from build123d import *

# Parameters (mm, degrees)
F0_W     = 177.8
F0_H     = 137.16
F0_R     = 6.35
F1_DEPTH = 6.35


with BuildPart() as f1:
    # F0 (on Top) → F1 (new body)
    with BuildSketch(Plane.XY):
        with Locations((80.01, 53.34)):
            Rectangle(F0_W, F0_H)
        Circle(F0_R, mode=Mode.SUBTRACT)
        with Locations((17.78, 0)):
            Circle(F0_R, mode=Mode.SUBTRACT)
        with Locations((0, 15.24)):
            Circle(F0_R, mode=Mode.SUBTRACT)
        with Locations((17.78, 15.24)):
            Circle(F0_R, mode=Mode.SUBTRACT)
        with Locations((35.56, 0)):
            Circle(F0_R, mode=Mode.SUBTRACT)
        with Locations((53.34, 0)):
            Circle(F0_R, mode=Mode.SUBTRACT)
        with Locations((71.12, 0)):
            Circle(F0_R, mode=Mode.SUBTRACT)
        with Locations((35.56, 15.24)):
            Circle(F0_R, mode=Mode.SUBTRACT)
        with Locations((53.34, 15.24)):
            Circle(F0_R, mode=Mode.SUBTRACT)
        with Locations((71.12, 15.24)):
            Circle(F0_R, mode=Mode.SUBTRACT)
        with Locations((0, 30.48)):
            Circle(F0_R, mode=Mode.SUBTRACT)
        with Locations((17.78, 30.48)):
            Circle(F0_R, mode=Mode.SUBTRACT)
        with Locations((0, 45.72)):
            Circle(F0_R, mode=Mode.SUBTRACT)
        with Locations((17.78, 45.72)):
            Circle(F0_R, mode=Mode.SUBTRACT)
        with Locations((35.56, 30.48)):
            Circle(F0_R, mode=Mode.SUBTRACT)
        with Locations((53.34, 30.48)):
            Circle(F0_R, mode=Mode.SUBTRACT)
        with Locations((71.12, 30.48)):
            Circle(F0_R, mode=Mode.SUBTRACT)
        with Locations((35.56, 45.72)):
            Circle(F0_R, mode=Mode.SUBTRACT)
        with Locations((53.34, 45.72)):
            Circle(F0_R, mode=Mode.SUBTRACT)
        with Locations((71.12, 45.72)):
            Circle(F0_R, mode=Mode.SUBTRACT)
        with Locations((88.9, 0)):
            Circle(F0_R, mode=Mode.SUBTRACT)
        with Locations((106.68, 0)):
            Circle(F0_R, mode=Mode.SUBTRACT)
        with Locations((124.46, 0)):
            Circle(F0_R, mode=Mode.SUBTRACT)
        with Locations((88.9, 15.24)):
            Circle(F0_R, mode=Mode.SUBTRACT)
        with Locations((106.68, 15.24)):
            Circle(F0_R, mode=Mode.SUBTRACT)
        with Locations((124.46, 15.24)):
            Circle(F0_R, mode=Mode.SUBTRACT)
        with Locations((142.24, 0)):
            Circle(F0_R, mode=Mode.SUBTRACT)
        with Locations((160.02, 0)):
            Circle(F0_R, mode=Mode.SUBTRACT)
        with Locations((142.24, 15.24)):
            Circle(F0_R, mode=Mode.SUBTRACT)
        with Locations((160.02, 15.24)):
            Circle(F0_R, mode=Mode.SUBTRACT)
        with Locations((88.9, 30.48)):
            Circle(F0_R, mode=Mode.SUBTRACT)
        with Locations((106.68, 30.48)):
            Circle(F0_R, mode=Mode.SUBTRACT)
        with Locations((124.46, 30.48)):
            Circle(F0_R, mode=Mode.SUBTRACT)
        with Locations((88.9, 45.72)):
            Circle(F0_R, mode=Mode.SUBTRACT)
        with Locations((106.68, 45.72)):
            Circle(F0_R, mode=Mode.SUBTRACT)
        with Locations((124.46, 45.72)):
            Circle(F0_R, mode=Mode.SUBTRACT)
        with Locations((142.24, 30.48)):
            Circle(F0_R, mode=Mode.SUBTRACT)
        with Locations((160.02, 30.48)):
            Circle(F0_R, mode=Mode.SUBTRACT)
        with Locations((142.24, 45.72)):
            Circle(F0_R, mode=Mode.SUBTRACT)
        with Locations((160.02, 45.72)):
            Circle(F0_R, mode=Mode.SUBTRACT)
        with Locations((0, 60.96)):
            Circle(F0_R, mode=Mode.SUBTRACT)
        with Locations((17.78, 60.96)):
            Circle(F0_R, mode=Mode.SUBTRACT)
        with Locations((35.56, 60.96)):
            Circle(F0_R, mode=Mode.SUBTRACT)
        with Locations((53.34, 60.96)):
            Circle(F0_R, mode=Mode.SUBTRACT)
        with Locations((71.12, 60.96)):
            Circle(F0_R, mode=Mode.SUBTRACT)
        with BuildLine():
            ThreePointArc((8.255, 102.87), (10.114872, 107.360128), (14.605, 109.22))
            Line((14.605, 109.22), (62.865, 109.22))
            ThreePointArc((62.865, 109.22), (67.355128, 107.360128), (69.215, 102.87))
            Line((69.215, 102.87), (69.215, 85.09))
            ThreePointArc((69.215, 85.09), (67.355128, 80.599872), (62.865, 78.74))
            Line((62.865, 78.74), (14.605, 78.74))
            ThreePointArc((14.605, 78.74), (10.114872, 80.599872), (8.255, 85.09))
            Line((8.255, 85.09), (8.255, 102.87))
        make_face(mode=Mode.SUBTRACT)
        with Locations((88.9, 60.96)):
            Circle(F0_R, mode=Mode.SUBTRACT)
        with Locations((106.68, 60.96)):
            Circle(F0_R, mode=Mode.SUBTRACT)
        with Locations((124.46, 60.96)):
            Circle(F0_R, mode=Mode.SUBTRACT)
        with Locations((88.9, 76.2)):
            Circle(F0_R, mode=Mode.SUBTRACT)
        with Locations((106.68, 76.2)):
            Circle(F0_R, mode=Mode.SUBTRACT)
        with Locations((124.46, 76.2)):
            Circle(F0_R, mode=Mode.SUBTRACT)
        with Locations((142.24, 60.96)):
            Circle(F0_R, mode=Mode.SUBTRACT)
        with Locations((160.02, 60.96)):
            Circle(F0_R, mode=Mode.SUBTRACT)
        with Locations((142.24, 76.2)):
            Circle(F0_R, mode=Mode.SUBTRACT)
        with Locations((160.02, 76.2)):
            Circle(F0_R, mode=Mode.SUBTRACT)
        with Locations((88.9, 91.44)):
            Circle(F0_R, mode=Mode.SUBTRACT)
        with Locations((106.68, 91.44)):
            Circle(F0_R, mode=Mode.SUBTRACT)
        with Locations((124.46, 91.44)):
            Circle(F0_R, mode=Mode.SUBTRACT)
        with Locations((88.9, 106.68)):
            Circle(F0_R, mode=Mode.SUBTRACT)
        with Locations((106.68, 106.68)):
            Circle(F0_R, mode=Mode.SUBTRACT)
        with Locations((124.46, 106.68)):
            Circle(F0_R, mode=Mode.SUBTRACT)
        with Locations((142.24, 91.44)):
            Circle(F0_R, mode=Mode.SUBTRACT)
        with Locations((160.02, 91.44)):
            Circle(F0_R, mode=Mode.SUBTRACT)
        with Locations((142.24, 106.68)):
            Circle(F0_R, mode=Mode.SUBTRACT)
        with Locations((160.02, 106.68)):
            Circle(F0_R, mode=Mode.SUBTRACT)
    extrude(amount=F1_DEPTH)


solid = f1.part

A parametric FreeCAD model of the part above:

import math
import FreeCAD as App
import Part
import Sketcher

V = App.Vector
Q = App.Units.Quantity

doc = App.newDocument("Part")
body = doc.addObject("PartDesign::Body", "Body")

# Sketch on XY plane
sketch1 = doc.addObject("Sketcher::SketchObject", "Sketch")
body.addObject(sketch1)
sketch1.AttachmentSupport = (doc.XY_Plane, [""])
sketch1.MapMode = "FlatFace"
sketch1.addGeometry([
    Part.LineSegment(V(-8.89, 121.92, 0), V(-8.89, -15.24, 0)),  # 0
    Part.LineSegment(V(-8.89, -15.24, 0), V(168.91, -15.24, 0)),  # 1
    Part.LineSegment(V(168.91, -15.24, 0), V(168.91, 121.92, 0)),  # 2
    Part.LineSegment(V(168.91, 121.92, 0), V(-8.89, 121.92, 0)),  # 3
    Part.Circle(V(0, 0, 0), V(0, 0, 1), 6.35),  # 4
    Part.Circle(V(17.78, 0, 0), V(0, 0, 1), 6.35),  # 5
    Part.Circle(V(35.56, 0, 0), V(0, 0, 1), 6.35),  # 6
    Part.Circle(V(0, 15.24, 0), V(0, 0, 1), 6.35),  # 7
    Part.Circle(V(17.78, 15.24, 0), V(0, 0, 1), 6.35),  # 8
    Part.Circle(V(35.56, 15.24, 0), V(0, 0, 1), 6.35),  # 9
    Part.Circle(V(53.34, 0, 0), V(0, 0, 1), 6.35),  # 10
    Part.Circle(V(71.12, 0, 0), V(0, 0, 1), 6.35),  # 11
    Part.Circle(V(53.34, 15.24, 0), V(0, 0, 1), 6.35),  # 12
    Part.Circle(V(71.12, 15.24, 0), V(0, 0, 1), 6.35),  # 13
    Part.Circle(V(0, 30.48, 0), V(0, 0, 1), 6.35),  # 14
    Part.Circle(V(17.78, 30.48, 0), V(0, 0, 1), 6.35),  # 15
    Part.Circle(V(35.56, 30.48, 0), V(0, 0, 1), 6.35),  # 16
    Part.Circle(V(0, 45.72, 0), V(0, 0, 1), 6.35),  # 17
    Part.Circle(V(17.78, 45.72, 0), V(0, 0, 1), 6.35),  # 18
    Part.Circle(V(35.56, 45.72, 0), V(0, 0, 1), 6.35),  # 19
    Part.Circle(V(53.34, 30.48, 0), V(0, 0, 1), 6.35),  # 20
    Part.Circle(V(71.12, 30.48, 0), V(0, 0, 1), 6.35),  # 21
    Part.Circle(V(53.34, 45.72, 0), V(0, 0, 1), 6.35),  # 22
    Part.Circle(V(71.12, 45.72, 0), V(0, 0, 1), 6.35),  # 23
    Part.Circle(V(88.9, 0, 0), V(0, 0, 1), 6.35),  # 24
    Part.Circle(V(106.68, 0, 0), V(0, 0, 1), 6.35),  # 25
    Part.Circle(V(88.9, 15.24, 0), V(0, 0, 1), 6.35),  # 26
    Part.Circle(V(106.68, 15.24, 0), V(0, 0, 1), 6.35),  # 27
    Part.Circle(V(124.46, 0, 0), V(0, 0, 1), 6.35),  # 28
    Part.Circle(V(142.24, 0, 0), V(0, 0, 1), 6.35),  # 29
    Part.Circle(V(160.02, 0, 0), V(0, 0, 1), 6.35),  # 30
    Part.Circle(V(124.46, 15.24, 0), V(0, 0, 1), 6.35),  # 31
    Part.Circle(V(142.24, 15.24, 0), V(0, 0, 1), 6.35),  # 32
    Part.Circle(V(160.02, 15.24, 0), V(0, 0, 1), 6.35),  # 33
    Part.Circle(V(88.9, 30.48, 0), V(0, 0, 1), 6.35),  # 34
    Part.Circle(V(106.68, 30.48, 0), V(0, 0, 1), 6.35),  # 35
    Part.Circle(V(88.9, 45.72, 0), V(0, 0, 1), 6.35),  # 36
    Part.Circle(V(106.68, 45.72, 0), V(0, 0, 1), 6.35),  # 37
    Part.Circle(V(124.46, 30.48, 0), V(0, 0, 1), 6.35),  # 38
    Part.Circle(V(142.24, 30.48, 0), V(0, 0, 1), 6.35),  # 39
    Part.Circle(V(160.02, 30.48, 0), V(0, 0, 1), 6.35),  # 40
    Part.Circle(V(124.46, 45.72, 0), V(0, 0, 1), 6.35),  # 41
    Part.Circle(V(142.24, 45.72, 0), V(0, 0, 1), 6.35),  # 42
    Part.Circle(V(160.02, 45.72, 0), V(0, 0, 1), 6.35),  # 43
    Part.Circle(V(0, 60.96, 0), V(0, 0, 1), 6.35),  # 44
    Part.Circle(V(17.78, 60.96, 0), V(0, 0, 1), 6.35),  # 45
    Part.Circle(V(35.56, 60.96, 0), V(0, 0, 1), 6.35),  # 46
    Part.Circle(V(53.34, 60.96, 0), V(0, 0, 1), 6.35),  # 47
    Part.Circle(V(71.12, 60.96, 0), V(0, 0, 1), 6.35),  # 48
    Part.LineSegment(V(8.255, 85.09, 0), V(8.255, 102.87, 0)),  # 49
    Part.ArcOfCircle(Part.Circle(V(14.605, 102.87, 0), V(0, 0, 1), 6.35), math.radians(90.000002), math.radians(179.999998)),  # 50
    Part.LineSegment(V(14.605, 109.22, 0), V(62.865, 109.22, 0)),  # 51
    Part.ArcOfCircle(Part.Circle(V(62.865, 102.87, 0), V(0, 0, 1), 6.35), math.radians(0.000002), math.radians(89.999998)),  # 52
    Part.LineSegment(V(69.215, 102.87, 0), V(69.215, 85.09, 0)),  # 53
    Part.ArcOfCircle(Part.Circle(V(62.865, 85.09, 0), V(0, 0, 1), 6.35), math.radians(-89.999998), math.radians(-0.000002)),  # 54
    Part.LineSegment(V(62.865, 78.74, 0), V(14.605, 78.74, 0)),  # 55
    Part.ArcOfCircle(Part.Circle(V(14.605, 85.09, 0), V(0, 0, 1), 6.35), math.radians(-179.999998), math.radians(-90.000002)),  # 56
    Part.Circle(V(88.9, 60.96, 0), V(0, 0, 1), 6.35),  # 57
    Part.Circle(V(106.68, 60.96, 0), V(0, 0, 1), 6.35),  # 58
    Part.Circle(V(88.9, 76.2, 0), V(0, 0, 1), 6.35),  # 59
    Part.Circle(V(106.68, 76.2, 0), V(0, 0, 1), 6.35),  # 60
    Part.Circle(V(124.46, 60.96, 0), V(0, 0, 1), 6.35),  # 61
    Part.Circle(V(142.24, 60.96, 0), V(0, 0, 1), 6.35),  # 62
    Part.Circle(V(160.02, 60.96, 0), V(0, 0, 1), 6.35),  # 63
    Part.Circle(V(124.46, 76.2, 0), V(0, 0, 1), 6.35),  # 64
    Part.Circle(V(142.24, 76.2, 0), V(0, 0, 1), 6.35),  # 65
    Part.Circle(V(160.02, 76.2, 0), V(0, 0, 1), 6.35),  # 66
    Part.Circle(V(88.9, 91.44, 0), V(0, 0, 1), 6.35),  # 67
    Part.Circle(V(106.68, 91.44, 0), V(0, 0, 1), 6.35),  # 68
    Part.Circle(V(88.9, 106.68, 0), V(0, 0, 1), 6.35),  # 69
    Part.Circle(V(106.68, 106.68, 0), V(0, 0, 1), 6.35),  # 70
    Part.Circle(V(124.46, 91.44, 0), V(0, 0, 1), 6.35),  # 71
    Part.Circle(V(142.24, 91.44, 0), V(0, 0, 1), 6.35),  # 72
    Part.Circle(V(160.02, 91.44, 0), V(0, 0, 1), 6.35),  # 73
    Part.Circle(V(124.46, 106.68, 0), V(0, 0, 1), 6.35),  # 74
    Part.Circle(V(142.24, 106.68, 0), V(0, 0, 1), 6.35),  # 75
    Part.Circle(V(160.02, 106.68, 0), V(0, 0, 1), 6.35),  # 76
], False)
sketch1.addConstraint([
    Sketcher.Constraint("Coincident", 0, 2, 1, 1),
    Sketcher.Constraint("Coincident", 1, 2, 2, 1),
    Sketcher.Constraint("Coincident", 2, 2, 3, 1),
    Sketcher.Constraint("Coincident", 3, 2, 0, 1),
    Sketcher.Constraint("Tangent", 49, 2, 50, 2),
    Sketcher.Constraint("Tangent", 50, 1, 51, 1),
    Sketcher.Constraint("Tangent", 51, 2, 52, 2),
    Sketcher.Constraint("Tangent", 52, 1, 53, 1),
    Sketcher.Constraint("Tangent", 53, 2, 54, 2),
    Sketcher.Constraint("Tangent", 54, 1, 55, 1),
    Sketcher.Constraint("Tangent", 55, 2, 56, 2),
    Sketcher.Constraint("Tangent", 56, 1, 49, 1),
    Sketcher.Constraint("Vertical", 0),
    Sketcher.Constraint("Horizontal", 1),
    Sketcher.Constraint("Vertical", 2),
    Sketcher.Constraint("Horizontal", 3),
    Sketcher.Constraint("Vertical", 49),
    Sketcher.Constraint("Horizontal", 51),
    Sketcher.Constraint("Vertical", 53),
    Sketcher.Constraint("Horizontal", 55),
    Sketcher.Constraint("Coincident", 4, 3, -1, 1),
    Sketcher.Constraint("Equal", 4, 5),
    Sketcher.Constraint("Equal", 5, 6),
    Sketcher.Constraint("Equal", 6, 7),
    Sketcher.Constraint("Equal", 7, 8),
    Sketcher.Constraint("Equal", 8, 9),
    Sketcher.Constraint("Equal", 9, 10),
    Sketcher.Constraint("Equal", 10, 11),
    Sketcher.Constraint("Equal", 11, 12),
    Sketcher.Constraint("Equal", 12, 13),
    Sketcher.Constraint("Equal", 13, 14),
    Sketcher.Constraint("Equal", 14, 15),
    Sketcher.Constraint("Equal", 15, 16),
    Sketcher.Constraint("Equal", 16, 17),
    Sketcher.Constraint("Equal", 17, 18),
    Sketcher.Constraint("Equal", 18, 19),
    Sketcher.Constraint("Equal", 19, 20),
    Sketcher.Constraint("Equal", 20, 21),
    Sketcher.Constraint("Equal", 21, 22),
    Sketcher.Constraint("Equal", 22, 23),
    Sketcher.Constraint("Equal", 23, 24),
    Sketcher.Constraint("Equal", 24, 25),
    Sketcher.Constraint("Equal", 25, 26),
    Sketcher.Constraint("Equal", 26, 27),
    Sketcher.Constraint("Equal", 27, 28),
    Sketcher.Constraint("Equal", 28, 29),
    Sketcher.Constraint("Equal", 29, 30),
    Sketcher.Constraint("Equal", 30, 31),
    Sketcher.Constraint("Equal", 31, 32),
    Sketcher.Constraint("Equal", 32, 33),
    Sketcher.Constraint("Equal", 33, 34),
    Sketcher.Constraint("Equal", 34, 35),
    Sketcher.Constraint("Equal", 35, 36),
    Sketcher.Constraint("Equal", 36, 37),
    Sketcher.Constraint("Equal", 37, 38),
    Sketcher.Constraint("Equal", 38, 39),
    Sketcher.Constraint("Equal", 39, 40),
    Sketcher.Constraint("Equal", 40, 41),
    Sketcher.Constraint("Equal", 41, 42),
    Sketcher.Constraint("Equal", 42, 43),
    Sketcher.Constraint("Equal", 43, 44),
    Sketcher.Constraint("Equal", 44, 45),
    Sketcher.Constraint("Equal", 45, 46),
    Sketcher.Constraint("Equal", 46, 47),
    Sketcher.Constraint("Equal", 47, 48),
    Sketcher.Constraint("Equal", 48, 50),
    Sketcher.Constraint("Equal", 50, 52),
    Sketcher.Constraint("Equal", 52, 54),
    Sketcher.Constraint("Equal", 54, 56),
    Sketcher.Constraint("Equal", 56, 57),
    Sketcher.Constraint("Equal", 57, 58),
    Sketcher.Constraint("Equal", 58, 59),
    Sketcher.Constraint("Equal", 59, 60),
    Sketcher.Constraint("Equal", 60, 61),
    Sketcher.Constraint("Equal", 61, 62),
    Sketcher.Constraint("Equal", 62, 63),
    Sketcher.Constraint("Equal", 63, 64),
    Sketcher.Constraint("Equal", 64, 65),
    Sketcher.Constraint("Equal", 65, 66),
    Sketcher.Constraint("Equal", 66, 67),
    Sketcher.Constraint("Equal", 67, 68),
    Sketcher.Constraint("Equal", 68, 69),
    Sketcher.Constraint("Equal", 69, 70),
    Sketcher.Constraint("Equal", 70, 71),
    Sketcher.Constraint("Equal", 71, 72),
    Sketcher.Constraint("Equal", 72, 73),
    Sketcher.Constraint("Equal", 73, 74),
    Sketcher.Constraint("Equal", 74, 75),
    Sketcher.Constraint("Equal", 75, 76),
    Sketcher.Constraint("PointOnObject", 5, 3, -1),
    Sketcher.Constraint("PointOnObject", 6, 3, -1),
    Sketcher.Constraint("PointOnObject", 7, 3, -2),
    Sketcher.Constraint("PointOnObject", 10, 3, -1),
    Sketcher.Constraint("PointOnObject", 11, 3, -1),
    Sketcher.Constraint("PointOnObject", 14, 3, -2),
    Sketcher.Constraint("PointOnObject", 17, 3, -2),
    Sketcher.Constraint("PointOnObject", 24, 3, -1),
    Sketcher.Constraint("PointOnObject", 25, 3, -1),
    Sketcher.Constraint("PointOnObject", 28, 3, -1),
    Sketcher.Constraint("PointOnObject", 29, 3, -1),
    Sketcher.Constraint("PointOnObject", 30, 3, -1),
    Sketcher.Constraint("PointOnObject", 44, 3, -2),
    Sketcher.Constraint("Horizontal", 7, 3, 8, 3),
    Sketcher.Constraint("Horizontal", 8, 3, 9, 3),
    Sketcher.Constraint("Horizontal", 9, 3, 12, 3),
    Sketcher.Constraint("Horizontal", 12, 3, 13, 3),
    Sketcher.Constraint("Horizontal", 14, 3, 15, 3),
    Sketcher.Constraint("Horizontal", 15, 3, 16, 3),
    Sketcher.Constraint("Horizontal", 17, 3, 18, 3),
    Sketcher.Constraint("Horizontal", 18, 3, 19, 3),
    Sketcher.Constraint("Horizontal", 16, 3, 20, 3),
    Sketcher.Constraint("Horizontal", 20, 3, 21, 3),
    Sketcher.Constraint("Horizontal", 19, 3, 22, 3),
    Sketcher.Constraint("Horizontal", 22, 3, 23, 3),
    Sketcher.Constraint("Horizontal", 13, 3, 26, 3),
    Sketcher.Constraint("Horizontal", 26, 3, 27, 3),
    Sketcher.Constraint("Horizontal", 27, 3, 31, 3),
    Sketcher.Constraint("Horizontal", 31, 3, 32, 3),
    Sketcher.Constraint("Horizontal", 32, 3, 33, 3),
    Sketcher.Constraint("Horizontal", 21, 3, 34, 3),
    Sketcher.Constraint("Horizontal", 34, 3, 35, 3),
    Sketcher.Constraint("Horizontal", 23, 3, 36, 3),
    Sketcher.Constraint("Horizontal", 36, 3, 37, 3),
    Sketcher.Constraint("Horizontal", 35, 3, 38, 3),
    Sketcher.Constraint("Horizontal", 38, 3, 39, 3),
    Sketcher.Constraint("Horizontal", 39, 3, 40, 3),
    Sketcher.Constraint("Horizontal", 37, 3, 41, 3),
    Sketcher.Constraint("Horizontal", 41, 3, 42, 3),
    Sketcher.Constraint("Horizontal", 42, 3, 43, 3),
    Sketcher.Constraint("Horizontal", 44, 3, 45, 3),
    Sketcher.Constraint("Horizontal", 45, 3, 46, 3),
    Sketcher.Constraint("Horizontal", 46, 3, 47, 3),
    Sketcher.Constraint("Horizontal", 47, 3, 48, 3),
    Sketcher.Constraint("Horizontal", 48, 3, 57, 3),
    Sketcher.Constraint("Horizontal", 57, 3, 58, 3),
    Sketcher.Constraint("Horizontal", 59, 3, 60, 3),
    Sketcher.Constraint("Horizontal", 58, 3, 61, 3),
    Sketcher.Constraint("Horizontal", 61, 3, 62, 3),
    Sketcher.Constraint("Horizontal", 62, 3, 63, 3),
    Sketcher.Constraint("Horizontal", 60, 3, 64, 3),
    Sketcher.Constraint("Horizontal", 64, 3, 65, 3),
    Sketcher.Constraint("Horizontal", 65, 3, 66, 3),
    Sketcher.Constraint("Horizontal", 67, 3, 68, 3),
    Sketcher.Constraint("Horizontal", 69, 3, 70, 3),
    Sketcher.Constraint("Horizontal", 68, 3, 71, 3),
    Sketcher.Constraint("Horizontal", 71, 3, 72, 3),
    Sketcher.Constraint("Horizontal", 72, 3, 73, 3),
    Sketcher.Constraint("Horizontal", 70, 3, 74, 3),
    Sketcher.Constraint("Horizontal", 74, 3, 75, 3),
    Sketcher.Constraint("Horizontal", 75, 3, 76, 3),
    Sketcher.Constraint("Vertical", 5, 3, 8, 3),
    Sketcher.Constraint("Vertical", 6, 3, 9, 3),
    Sketcher.Constraint("Vertical", 10, 3, 12, 3),
    Sketcher.Constraint("Vertical", 11, 3, 13, 3),
    Sketcher.Constraint("Vertical", 8, 3, 15, 3),
    Sketcher.Constraint("Vertical", 9, 3, 16, 3),
    Sketcher.Constraint("Vertical", 15, 3, 18, 3),
    Sketcher.Constraint("Vertical", 16, 3, 19, 3),
    Sketcher.Constraint("Vertical", 12, 3, 20, 3),
    Sketcher.Constraint("Vertical", 13, 3, 21, 3),
    Sketcher.Constraint("Vertical", 20, 3, 22, 3),
    Sketcher.Constraint("Vertical", 21, 3, 23, 3),
    Sketcher.Constraint("Vertical", 24, 3, 26, 3),
    Sketcher.Constraint("Vertical", 25, 3, 27, 3),
    Sketcher.Constraint("Vertical", 28, 3, 31, 3),
    Sketcher.Constraint("Vertical", 29, 3, 32, 3),
    Sketcher.Constraint("Vertical", 30, 3, 33, 3),
    Sketcher.Constraint("Vertical", 26, 3, 34, 3),
    Sketcher.Constraint("Vertical", 27, 3, 35, 3),
    Sketcher.Constraint("Vertical", 34, 3, 36, 3),
    Sketcher.Constraint("Vertical", 35, 3, 37, 3),
    Sketcher.Constraint("Vertical", 31, 3, 38, 3),
    Sketcher.Constraint("Vertical", 32, 3, 39, 3),
    Sketcher.Constraint("Vertical", 33, 3, 40, 3),
    Sketcher.Constraint("Vertical", 38, 3, 41, 3),
    Sketcher.Constraint("Vertical", 39, 3, 42, 3),
    Sketcher.Constraint("Vertical", 40, 3, 43, 3),
    Sketcher.Constraint("Vertical", 18, 3, 45, 3),
    Sketcher.Constraint("Vertical", 19, 3, 46, 3),
    Sketcher.Constraint("Vertical", 22, 3, 47, 3),
    Sketcher.Constraint("Vertical", 23, 3, 48, 3),
    Sketcher.Constraint("Vertical", 36, 3, 57, 3),
    Sketcher.Constraint("Vertical", 37, 3, 58, 3),
    Sketcher.Constraint("Vertical", 57, 3, 59, 3),
    Sketcher.Constraint("Vertical", 58, 3, 60, 3),
    Sketcher.Constraint("Vertical", 41, 3, 61, 3),
    Sketcher.Constraint("Vertical", 42, 3, 62, 3),
    Sketcher.Constraint("Vertical", 43, 3, 63, 3),
    Sketcher.Constraint("Vertical", 61, 3, 64, 3),
    Sketcher.Constraint("Vertical", 62, 3, 65, 3),
    Sketcher.Constraint("Vertical", 63, 3, 66, 3),
    Sketcher.Constraint("Vertical", 59, 3, 67, 3),
    Sketcher.Constraint("Vertical", 60, 3, 68, 3),
    Sketcher.Constraint("Vertical", 67, 3, 69, 3),
    Sketcher.Constraint("Vertical", 68, 3, 70, 3),
    Sketcher.Constraint("Vertical", 64, 3, 71, 3),
    Sketcher.Constraint("Vertical", 65, 3, 72, 3),
    Sketcher.Constraint("Vertical", 66, 3, 73, 3),
    Sketcher.Constraint("Vertical", 71, 3, 74, 3),
    Sketcher.Constraint("Vertical", 72, 3, 75, 3),
    Sketcher.Constraint("Vertical", 73, 3, 76, 3),
    Sketcher.Constraint("Diameter", 4, Q("0.5 in")),
    Sketcher.Constraint("DistanceX", 1, 1, 1, 2, Q("7 in")),
    Sketcher.Constraint("DistanceX", 51, 1, 51, 2, Q("1.9 in")),
    Sketcher.Constraint("DistanceY", 0, 2, 0, 1, Q("5.4 in")),
    Sketcher.Constraint("DistanceY", 49, 1, 49, 2, Q("0.7 in")),
    Sketcher.Constraint("DistanceY", -1, 1, 59, 3, Q("3 in")),
    Sketcher.Constraint("DistanceX", -1, 1, 5, 3, Q("0.7 in")),
    Sketcher.Constraint("DistanceX", -1, 1, 6, 3, Q("1.4 in")),
    Sketcher.Constraint("DistanceY", -1, 1, 7, 3, Q("0.6 in")),
    Sketcher.Constraint("DistanceX", -1, 1, 10, 3, Q("2.1 in")),
    Sketcher.Constraint("DistanceX", -1, 1, 11, 3, Q("2.8 in")),
    Sketcher.Constraint("DistanceY", -1, 1, 14, 3, Q("1.2 in")),
    Sketcher.Constraint("DistanceY", -1, 1, 17, 3, Q("1.8 in")),
    Sketcher.Constraint("DistanceX", -1, 1, 24, 3, Q("3.5 in")),
    Sketcher.Constraint("DistanceX", -1, 1, 25, 3, Q("4.2 in")),
    Sketcher.Constraint("DistanceX", -1, 1, 28, 3, Q("4.9 in")),
    Sketcher.Constraint("DistanceX", -1, 1, 29, 3, Q("5.6 in")),
    Sketcher.Constraint("DistanceX", -1, 1, 30, 3, Q("6.3 in")),
    Sketcher.Constraint("DistanceY", -1, 1, 44, 3, Q("2.4 in")),
    Sketcher.Constraint("DistanceY", -1, 1, 67, 3, Q("3.6 in")),
    Sketcher.Constraint("DistanceY", -1, 1, 69, 3, Q("4.2 in")),
    Sketcher.Constraint("DistanceY", 0, 2, -1, 1, Q("0.6 in")),
    Sketcher.Constraint("DistanceY", -1, 1, 50, 1, Q("4.3 in")),
    Sketcher.Constraint("DistanceX", 0, 2, -1, 1, Q("0.35 in")),
    Sketcher.Constraint("DistanceX", -1, 1, 50, 3, Q("0.575 in")),
])
pad1 = doc.addObject("PartDesign::Pad", "Pad")
body.addObject(pad1)
pad1.Profile = sketch1
pad1.Length = Q("0.25 in")

doc.recompute()
